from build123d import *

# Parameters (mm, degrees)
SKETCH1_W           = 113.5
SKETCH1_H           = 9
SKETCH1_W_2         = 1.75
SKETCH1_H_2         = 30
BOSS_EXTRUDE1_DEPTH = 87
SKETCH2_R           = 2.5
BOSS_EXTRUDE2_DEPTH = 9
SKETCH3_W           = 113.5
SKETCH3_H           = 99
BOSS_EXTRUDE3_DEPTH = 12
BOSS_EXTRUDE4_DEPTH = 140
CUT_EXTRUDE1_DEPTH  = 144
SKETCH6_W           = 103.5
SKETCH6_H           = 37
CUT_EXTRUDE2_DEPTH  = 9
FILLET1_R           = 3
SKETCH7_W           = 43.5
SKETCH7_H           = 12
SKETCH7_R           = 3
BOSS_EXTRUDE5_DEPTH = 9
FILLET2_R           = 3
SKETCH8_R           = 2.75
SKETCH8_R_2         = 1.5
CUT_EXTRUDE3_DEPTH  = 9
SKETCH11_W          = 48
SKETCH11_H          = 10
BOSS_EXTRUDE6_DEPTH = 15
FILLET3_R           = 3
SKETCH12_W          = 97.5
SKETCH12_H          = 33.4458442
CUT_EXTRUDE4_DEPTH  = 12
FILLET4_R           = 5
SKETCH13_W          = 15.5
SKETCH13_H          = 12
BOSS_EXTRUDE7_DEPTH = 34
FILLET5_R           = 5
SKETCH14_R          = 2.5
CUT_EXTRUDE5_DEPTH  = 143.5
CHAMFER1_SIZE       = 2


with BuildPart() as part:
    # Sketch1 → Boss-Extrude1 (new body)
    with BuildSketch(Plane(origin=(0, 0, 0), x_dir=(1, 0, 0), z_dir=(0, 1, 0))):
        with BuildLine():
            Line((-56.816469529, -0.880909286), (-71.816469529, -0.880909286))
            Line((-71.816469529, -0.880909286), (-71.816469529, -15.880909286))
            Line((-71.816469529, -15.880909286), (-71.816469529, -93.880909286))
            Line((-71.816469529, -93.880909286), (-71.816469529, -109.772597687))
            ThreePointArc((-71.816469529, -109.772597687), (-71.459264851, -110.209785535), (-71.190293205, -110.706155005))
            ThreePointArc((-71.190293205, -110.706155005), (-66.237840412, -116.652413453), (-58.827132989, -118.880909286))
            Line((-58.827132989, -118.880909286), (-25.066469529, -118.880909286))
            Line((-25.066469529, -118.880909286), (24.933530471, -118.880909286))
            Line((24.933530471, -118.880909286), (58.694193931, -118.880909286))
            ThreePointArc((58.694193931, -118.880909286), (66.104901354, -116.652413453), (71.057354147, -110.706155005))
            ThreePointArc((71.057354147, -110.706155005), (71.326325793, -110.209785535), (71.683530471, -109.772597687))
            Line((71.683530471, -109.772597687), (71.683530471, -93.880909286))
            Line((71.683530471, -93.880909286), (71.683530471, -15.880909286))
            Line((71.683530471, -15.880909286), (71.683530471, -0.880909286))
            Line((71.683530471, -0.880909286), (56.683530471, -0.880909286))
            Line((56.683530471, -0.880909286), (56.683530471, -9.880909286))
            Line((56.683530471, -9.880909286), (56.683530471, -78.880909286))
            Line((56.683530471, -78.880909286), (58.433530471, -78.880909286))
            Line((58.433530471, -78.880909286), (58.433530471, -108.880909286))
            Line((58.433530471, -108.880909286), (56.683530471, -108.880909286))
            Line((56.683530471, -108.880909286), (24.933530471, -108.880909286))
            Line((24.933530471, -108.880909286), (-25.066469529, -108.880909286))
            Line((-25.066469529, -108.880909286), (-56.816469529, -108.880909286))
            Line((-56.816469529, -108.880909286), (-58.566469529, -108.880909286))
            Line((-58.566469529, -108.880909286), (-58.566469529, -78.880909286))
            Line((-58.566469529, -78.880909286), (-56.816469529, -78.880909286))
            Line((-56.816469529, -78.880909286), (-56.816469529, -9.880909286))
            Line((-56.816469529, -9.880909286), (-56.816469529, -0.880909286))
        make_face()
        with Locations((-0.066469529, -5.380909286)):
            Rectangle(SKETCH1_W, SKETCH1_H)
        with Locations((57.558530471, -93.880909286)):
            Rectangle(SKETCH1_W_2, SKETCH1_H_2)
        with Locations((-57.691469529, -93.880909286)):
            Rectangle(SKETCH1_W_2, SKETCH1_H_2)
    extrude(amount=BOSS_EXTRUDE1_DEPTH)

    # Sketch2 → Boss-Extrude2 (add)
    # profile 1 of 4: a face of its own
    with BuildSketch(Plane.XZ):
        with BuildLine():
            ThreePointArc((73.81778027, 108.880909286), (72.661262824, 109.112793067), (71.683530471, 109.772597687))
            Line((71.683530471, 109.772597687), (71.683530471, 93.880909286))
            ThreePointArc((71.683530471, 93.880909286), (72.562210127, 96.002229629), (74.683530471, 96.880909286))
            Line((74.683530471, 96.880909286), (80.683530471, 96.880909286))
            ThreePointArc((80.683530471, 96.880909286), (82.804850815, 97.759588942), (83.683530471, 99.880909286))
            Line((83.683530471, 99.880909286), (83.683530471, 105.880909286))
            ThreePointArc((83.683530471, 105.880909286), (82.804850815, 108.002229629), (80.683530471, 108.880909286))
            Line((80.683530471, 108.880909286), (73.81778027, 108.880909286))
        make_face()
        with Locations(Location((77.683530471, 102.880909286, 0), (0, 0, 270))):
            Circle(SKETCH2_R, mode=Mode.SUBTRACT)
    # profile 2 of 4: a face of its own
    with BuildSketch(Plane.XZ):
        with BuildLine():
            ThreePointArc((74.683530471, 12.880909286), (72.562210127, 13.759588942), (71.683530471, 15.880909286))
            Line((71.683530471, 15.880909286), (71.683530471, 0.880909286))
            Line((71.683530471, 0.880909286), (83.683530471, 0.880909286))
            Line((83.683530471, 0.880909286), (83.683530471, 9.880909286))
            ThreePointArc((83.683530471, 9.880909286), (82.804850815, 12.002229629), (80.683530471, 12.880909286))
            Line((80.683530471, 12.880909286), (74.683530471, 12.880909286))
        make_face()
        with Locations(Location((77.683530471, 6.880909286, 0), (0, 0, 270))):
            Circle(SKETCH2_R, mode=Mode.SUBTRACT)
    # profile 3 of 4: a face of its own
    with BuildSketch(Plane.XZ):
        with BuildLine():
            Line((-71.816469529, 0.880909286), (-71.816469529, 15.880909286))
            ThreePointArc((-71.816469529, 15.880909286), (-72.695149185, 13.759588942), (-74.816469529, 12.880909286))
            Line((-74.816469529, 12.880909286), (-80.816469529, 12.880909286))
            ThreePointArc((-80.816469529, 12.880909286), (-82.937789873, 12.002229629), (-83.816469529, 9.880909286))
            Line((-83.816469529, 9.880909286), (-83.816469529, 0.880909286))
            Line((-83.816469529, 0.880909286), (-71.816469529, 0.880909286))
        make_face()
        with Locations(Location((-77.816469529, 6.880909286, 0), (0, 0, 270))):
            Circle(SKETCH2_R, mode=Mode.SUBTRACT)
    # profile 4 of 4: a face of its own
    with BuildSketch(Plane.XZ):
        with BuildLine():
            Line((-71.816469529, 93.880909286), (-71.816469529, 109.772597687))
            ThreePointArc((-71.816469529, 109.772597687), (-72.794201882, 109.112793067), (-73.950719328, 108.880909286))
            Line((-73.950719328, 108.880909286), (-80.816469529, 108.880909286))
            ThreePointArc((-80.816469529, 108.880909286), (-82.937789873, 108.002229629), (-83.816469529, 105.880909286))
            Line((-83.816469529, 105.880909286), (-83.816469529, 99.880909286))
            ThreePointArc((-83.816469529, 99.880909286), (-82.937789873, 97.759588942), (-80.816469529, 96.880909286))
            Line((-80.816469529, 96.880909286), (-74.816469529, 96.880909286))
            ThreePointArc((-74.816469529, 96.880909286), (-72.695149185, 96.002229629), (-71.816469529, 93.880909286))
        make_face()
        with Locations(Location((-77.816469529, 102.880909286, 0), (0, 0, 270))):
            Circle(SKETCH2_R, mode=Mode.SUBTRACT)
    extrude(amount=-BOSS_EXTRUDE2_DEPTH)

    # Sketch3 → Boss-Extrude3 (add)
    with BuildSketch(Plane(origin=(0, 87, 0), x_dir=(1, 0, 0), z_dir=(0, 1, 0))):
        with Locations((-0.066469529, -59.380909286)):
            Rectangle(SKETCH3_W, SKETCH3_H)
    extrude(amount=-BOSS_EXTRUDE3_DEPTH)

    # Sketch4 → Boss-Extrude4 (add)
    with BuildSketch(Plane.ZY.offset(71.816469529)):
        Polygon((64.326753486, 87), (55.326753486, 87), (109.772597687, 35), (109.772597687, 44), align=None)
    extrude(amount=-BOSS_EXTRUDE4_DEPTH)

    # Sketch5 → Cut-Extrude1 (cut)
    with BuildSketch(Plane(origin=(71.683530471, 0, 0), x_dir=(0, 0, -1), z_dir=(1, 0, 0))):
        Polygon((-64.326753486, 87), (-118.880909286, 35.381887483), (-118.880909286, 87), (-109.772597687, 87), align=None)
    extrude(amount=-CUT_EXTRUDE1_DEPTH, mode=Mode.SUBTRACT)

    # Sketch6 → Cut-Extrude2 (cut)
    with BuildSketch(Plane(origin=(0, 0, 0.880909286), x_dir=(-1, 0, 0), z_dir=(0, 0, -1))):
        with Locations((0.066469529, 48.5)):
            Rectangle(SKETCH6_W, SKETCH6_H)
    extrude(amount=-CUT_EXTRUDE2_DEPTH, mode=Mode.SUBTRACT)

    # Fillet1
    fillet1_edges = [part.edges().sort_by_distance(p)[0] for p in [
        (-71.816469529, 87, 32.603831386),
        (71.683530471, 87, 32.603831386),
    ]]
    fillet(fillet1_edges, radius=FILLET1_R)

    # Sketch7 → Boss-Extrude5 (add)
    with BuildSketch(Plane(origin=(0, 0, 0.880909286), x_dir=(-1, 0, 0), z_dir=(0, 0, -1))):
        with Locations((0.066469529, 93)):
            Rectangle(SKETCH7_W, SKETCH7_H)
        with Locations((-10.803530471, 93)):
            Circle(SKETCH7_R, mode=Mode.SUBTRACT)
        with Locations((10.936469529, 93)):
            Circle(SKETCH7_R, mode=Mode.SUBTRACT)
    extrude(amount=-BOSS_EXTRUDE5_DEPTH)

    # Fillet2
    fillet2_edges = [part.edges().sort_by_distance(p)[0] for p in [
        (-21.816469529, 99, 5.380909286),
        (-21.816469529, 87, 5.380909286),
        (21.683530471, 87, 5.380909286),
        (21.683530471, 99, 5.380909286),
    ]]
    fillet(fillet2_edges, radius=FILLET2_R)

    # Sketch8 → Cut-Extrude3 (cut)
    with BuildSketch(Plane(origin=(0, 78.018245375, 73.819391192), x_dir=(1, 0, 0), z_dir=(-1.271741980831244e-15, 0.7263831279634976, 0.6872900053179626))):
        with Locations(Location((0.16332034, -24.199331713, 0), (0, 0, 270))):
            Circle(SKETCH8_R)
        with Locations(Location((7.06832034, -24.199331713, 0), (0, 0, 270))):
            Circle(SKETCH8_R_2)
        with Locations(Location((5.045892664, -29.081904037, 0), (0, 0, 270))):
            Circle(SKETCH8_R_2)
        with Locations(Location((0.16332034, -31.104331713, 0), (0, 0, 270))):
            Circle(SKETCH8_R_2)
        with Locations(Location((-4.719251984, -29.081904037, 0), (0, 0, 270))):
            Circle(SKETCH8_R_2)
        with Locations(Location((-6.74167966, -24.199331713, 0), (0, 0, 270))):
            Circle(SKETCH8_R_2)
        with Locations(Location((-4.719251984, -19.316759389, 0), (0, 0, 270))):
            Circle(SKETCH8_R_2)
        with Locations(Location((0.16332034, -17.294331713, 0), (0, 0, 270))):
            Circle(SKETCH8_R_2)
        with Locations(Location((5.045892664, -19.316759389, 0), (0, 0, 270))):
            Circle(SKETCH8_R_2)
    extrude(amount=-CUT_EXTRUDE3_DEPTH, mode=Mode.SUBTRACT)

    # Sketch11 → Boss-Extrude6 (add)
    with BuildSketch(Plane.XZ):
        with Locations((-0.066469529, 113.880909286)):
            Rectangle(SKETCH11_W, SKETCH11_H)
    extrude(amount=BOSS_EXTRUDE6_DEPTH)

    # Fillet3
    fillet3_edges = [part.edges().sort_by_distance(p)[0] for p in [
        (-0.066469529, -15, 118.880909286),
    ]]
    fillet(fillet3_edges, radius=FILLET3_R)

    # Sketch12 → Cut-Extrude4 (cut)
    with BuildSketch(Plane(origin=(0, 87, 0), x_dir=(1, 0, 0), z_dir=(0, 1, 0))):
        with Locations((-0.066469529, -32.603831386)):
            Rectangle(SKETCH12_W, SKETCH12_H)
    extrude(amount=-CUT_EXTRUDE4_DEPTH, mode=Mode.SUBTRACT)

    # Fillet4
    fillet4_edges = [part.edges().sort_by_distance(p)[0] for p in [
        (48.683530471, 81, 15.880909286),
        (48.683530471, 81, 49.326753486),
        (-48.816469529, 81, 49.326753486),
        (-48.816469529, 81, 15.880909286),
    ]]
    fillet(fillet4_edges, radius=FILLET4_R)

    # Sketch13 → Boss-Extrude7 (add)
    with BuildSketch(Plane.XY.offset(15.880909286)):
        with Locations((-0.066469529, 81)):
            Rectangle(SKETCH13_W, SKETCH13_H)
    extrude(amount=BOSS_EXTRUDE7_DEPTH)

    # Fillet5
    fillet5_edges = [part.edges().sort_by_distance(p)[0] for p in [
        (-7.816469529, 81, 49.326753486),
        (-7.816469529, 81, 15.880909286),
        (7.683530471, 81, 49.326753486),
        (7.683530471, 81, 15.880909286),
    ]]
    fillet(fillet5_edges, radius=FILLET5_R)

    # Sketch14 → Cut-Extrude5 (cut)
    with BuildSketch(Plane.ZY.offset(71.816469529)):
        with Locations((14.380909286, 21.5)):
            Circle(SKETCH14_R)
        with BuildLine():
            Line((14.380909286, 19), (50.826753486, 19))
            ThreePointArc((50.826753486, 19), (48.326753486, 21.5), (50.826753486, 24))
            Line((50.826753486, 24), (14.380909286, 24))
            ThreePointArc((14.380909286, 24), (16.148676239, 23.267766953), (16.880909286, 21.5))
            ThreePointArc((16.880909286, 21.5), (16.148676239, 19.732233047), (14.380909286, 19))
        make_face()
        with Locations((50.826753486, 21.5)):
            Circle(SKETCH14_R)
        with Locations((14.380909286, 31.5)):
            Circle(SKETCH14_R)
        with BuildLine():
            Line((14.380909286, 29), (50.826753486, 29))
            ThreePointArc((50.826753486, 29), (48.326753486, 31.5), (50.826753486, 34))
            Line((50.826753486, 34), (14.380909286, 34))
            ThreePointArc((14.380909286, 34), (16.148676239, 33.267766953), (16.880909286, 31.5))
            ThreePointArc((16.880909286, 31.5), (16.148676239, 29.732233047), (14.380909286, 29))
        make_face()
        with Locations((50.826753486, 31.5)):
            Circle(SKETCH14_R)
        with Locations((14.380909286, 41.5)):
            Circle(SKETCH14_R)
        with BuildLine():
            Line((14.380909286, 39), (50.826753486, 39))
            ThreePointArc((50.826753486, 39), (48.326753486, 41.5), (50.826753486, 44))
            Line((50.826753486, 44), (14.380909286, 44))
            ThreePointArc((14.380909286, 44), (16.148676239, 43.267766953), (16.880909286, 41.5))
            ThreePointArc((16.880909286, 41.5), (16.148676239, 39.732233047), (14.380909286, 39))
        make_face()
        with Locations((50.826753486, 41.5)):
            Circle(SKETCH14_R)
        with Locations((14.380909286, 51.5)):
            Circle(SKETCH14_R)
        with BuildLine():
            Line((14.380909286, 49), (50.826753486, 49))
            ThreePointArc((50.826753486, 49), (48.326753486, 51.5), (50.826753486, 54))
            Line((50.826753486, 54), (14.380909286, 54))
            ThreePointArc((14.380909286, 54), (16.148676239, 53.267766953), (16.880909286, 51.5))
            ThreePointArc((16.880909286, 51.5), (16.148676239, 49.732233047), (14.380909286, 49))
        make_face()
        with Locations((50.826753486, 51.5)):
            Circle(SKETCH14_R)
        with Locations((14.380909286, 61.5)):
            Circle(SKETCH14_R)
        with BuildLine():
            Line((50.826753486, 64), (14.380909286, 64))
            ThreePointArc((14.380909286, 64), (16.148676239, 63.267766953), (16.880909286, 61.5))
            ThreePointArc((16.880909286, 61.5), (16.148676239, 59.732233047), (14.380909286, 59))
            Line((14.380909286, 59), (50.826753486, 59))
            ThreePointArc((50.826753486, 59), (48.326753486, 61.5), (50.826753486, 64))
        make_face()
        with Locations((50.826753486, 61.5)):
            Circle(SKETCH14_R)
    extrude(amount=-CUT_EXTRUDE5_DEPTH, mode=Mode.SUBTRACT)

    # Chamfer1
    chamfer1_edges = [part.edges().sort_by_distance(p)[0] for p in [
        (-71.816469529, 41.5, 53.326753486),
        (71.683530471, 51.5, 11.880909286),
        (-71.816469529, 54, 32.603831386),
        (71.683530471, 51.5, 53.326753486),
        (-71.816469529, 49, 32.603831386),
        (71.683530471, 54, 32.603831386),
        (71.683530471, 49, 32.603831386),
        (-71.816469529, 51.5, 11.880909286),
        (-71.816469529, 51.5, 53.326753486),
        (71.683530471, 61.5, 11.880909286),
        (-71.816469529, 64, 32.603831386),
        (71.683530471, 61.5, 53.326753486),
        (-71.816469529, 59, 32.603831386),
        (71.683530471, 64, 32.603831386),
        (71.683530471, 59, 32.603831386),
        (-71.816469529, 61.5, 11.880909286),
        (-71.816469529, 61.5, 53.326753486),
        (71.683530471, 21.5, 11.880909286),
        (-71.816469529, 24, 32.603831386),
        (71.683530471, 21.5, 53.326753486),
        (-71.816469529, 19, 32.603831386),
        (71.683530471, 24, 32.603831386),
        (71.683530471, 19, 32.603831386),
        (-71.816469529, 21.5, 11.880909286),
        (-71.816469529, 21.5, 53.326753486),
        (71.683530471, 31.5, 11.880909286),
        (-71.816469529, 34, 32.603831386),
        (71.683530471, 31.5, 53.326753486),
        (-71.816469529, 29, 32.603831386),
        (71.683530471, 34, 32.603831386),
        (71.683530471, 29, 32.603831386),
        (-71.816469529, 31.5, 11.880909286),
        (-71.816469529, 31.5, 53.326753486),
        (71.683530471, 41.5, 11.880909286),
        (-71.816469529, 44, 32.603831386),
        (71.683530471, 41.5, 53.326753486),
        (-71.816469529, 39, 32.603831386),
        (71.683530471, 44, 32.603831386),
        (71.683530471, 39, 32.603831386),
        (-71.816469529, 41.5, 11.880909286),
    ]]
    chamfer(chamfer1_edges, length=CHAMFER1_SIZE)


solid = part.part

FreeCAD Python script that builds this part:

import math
import FreeCAD as App
import Part
import Sketcher
from FreeCAD import Vector
Q = App.Units.Quantity


def edges_at(feature, points):
    """Names of the edges that pass closest to the given points."""
    edges = feature.Shape.Edges
    near = lambda p: min(range(len(edges)), key=lambda i: edges[i].distToShape(Part.Vertex(*p))[0])
    return sorted({f"Edge{near(p) + 1}" for p in points})

doc = App.newDocument("Part")
body = doc.addObject("PartDesign::Body", "Body")

# Sketch on XZ plane
sketch1 = body.newObject("Sketcher::SketchObject", "Sketch")
sketch1.AttachmentSupport = (doc.getObject("XZ_Plane"), [""])
sketch1.MapMode = "FlatFace"
sketch1.addGeometry(Part.LineSegment(Vector(-71.8, 0.9, 0), Vector(-71.8, 109.8, 0)), False)
sketch1.addGeometry(Part.ArcOfCircle(Part.Circle(Vector(-74, 111.9, 0), Vector(0, 0, 1), 3), math.radians(-45), math.radians(-23)), False)
sketch1.addGeometry(Part.ArcOfCircle(Part.Circle(Vector(-58.8, 105.4, 0), Vector(0, 0, 1), 13.4), math.radians(90), math.radians(157)), False)
sketch1.addGeometry(Part.LineSegment(Vector(-58.8, 118.9, 0), Vector(58.7, 118.9, 0)), False)
sketch1.addGeometry(Part.ArcOfCircle(Part.Circle(Vector(58.7, 105.4, 0), Vector(0, 0, 1), 13.4), math.radians(23), math.radians(90)), False)
sketch1.addGeometry(Part.ArcOfCircle(Part.Circle(Vector(73.8, 111.9, 0), Vector(0, 0, 1), 3), math.radians(-157), math.radians(-135)), False)
sketch1.addGeometry(Part.LineSegment(Vector(71.7, 109.8, 0), Vector(71.7, 0.9, 0)), False)
sketch1.addGeometry(Part.LineSegment(Vector(71.7, 0.9, 0), Vector(-71.8, 0.9, 0)), False)
sketch1.addGeometry(Part.LineSegment(Vector(56.7, 9.9, 0), Vector(56.7, 108.9, 0)), False)
sketch1.addGeometry(Part.LineSegment(Vector(56.7, 108.9, 0), Vector(-56.8, 108.9, 0)), False)
sketch1.addGeometry(Part.LineSegment(Vector(-56.8, 108.9, 0), Vector(-56.8, 9.9, 0)), False)
sketch1.addGeometry(Part.LineSegment(Vector(-56.8, 9.9, 0), Vector(56.7, 9.9, 0)), False)
sketch1.addConstraint(Sketcher.Constraint("Coincident", 0, 2, 1, 1))
sketch1.addConstraint(Sketcher.Constraint("Tangent", 1, 2, 2, 2))
sketch1.addConstraint(Sketcher.Constraint("Tangent", 2, 1, 3, 1))
sketch1.addConstraint(Sketcher.Constraint("Tangent", 3, 2, 4, 2))
sketch1.addConstraint(Sketcher.Constraint("Tangent", 4, 1, 5, 1))
sketch1.addConstraint(Sketcher.Constraint("Coincident", 5, 2, 6, 1))
sketch1.addConstraint(Sketcher.Constraint("Coincident", 6, 2, 7, 1))
sketch1.addConstraint(Sketcher.Constraint("Coincident", 7, 2, 0, 1))
sketch1.addConstraint(Sketcher.Constraint("Coincident", 8, 2, 9, 1))
sketch1.addConstraint(Sketcher.Constraint("Coincident", 9, 2, 10, 1))
sketch1.addConstraint(Sketcher.Constraint("Coincident", 10, 2, 11, 1))
sketch1.addConstraint(Sketcher.Constraint("Coincident", 11, 2, 8, 1))
sketch1.addConstraint(Sketcher.Constraint("Vertical", 0))
sketch1.addConstraint(Sketcher.Constraint("Horizontal", 3))
sketch1.addConstraint(Sketcher.Constraint("Vertical", 6))
sketch1.addConstraint(Sketcher.Constraint("Horizontal", 7))
sketch1.addConstraint(Sketcher.Constraint("Vertical", 8))
sketch1.addConstraint(Sketcher.Constraint("Horizontal", 9))
sketch1.addConstraint(Sketcher.Constraint("Vertical", 10))
sketch1.addConstraint(Sketcher.Constraint("Horizontal", 11))
sketch1.addConstraint(Sketcher.Constraint("Equal", 2, 4))
sketch1.addConstraint(Sketcher.Constraint("Equal", 1, 5))
sketch1.addConstraint(Sketcher.Constraint("Horizontal", 1, 3, 5, 3))
sketch1.addConstraint(Sketcher.Constraint("Horizontal", 0, 2, 5, 2))
sketch1.addConstraint(Sketcher.Constraint("Radius", 1, Q("3 mm")))
sketch1.addConstraint(Sketcher.Constraint("DistanceY", 8, 1, 8, 2, Q("99 mm")))
sketch1.addConstraint(Sketcher.Constraint("DistanceX", 7, 2, 7, 1, Q("143.5 mm")))
sketch1.addConstraint(Sketcher.Constraint("DistanceX", 9, 2, 9, 1, Q("113.5 mm")))
sketch1.addConstraint(Sketcher.Constraint("DistanceY", 1, 3, 2, 1, Q("7 mm")))
sketch1.addConstraint(Sketcher.Constraint("DistanceY", 6, 2, 5, 3, Q("111 mm")))
sketch1.addConstraint(Sketcher.Constraint("DistanceY", 8, 2, 3, 2, Q("10 mm")))
sketch1.addConstraint(Sketcher.Constraint("DistanceX", 8, 2, 5, 2, Q("15 mm")))
sketch1.addConstraint(Sketcher.Constraint("Radius", 2, Q("13.436143 mm")))
sketch1.addConstraint(Sketcher.Constraint("DistanceY", 0, 1, 0, 2, Q("108.891688 mm")))
sketch1.addConstraint(Sketcher.Constraint("DistanceX", 1, 3, -1, 1, Q("73.950719 mm")))
sketch1.addConstraint(Sketcher.Constraint("DistanceY", -1, 1, 1, 3, Q("111.880909 mm")))
pad1 = body.newObject("PartDesign::Pad", "Pad")
pad1.Profile = sketch1
pad1.Length = 87
pad1.Reversed = True

# Sketch on XZ plane
sketch2 = body.newObject("Sketcher::SketchObject", "Sketch001")
sketch2.AttachmentSupport = (doc.getObject("XZ_Plane"), [""])
sketch2.MapMode = "FlatFace"
sketch2.addGeometry(Part.ArcOfCircle(Part.Circle(Vector(73.8, 111.9, 0), Vector(0, 0, 1), 3), math.radians(-135), math.radians(-90)), False)
sketch2.addGeometry(Part.LineSegment(Vector(71.7, 109.8, 0), Vector(71.7, 93.9, 0)), False)
sketch2.addGeometry(Part.ArcOfCircle(Part.Circle(Vector(74.7, 93.9, 0), Vector(0, 0, 1), 3), math.radians(90), math.radians(180)), False)
sketch2.addGeometry(Part.LineSegment(Vector(74.7, 96.9, 0), Vector(80.7, 96.9, 0)), False)
sketch2.addGeometry(Part.ArcOfCircle(Part.Circle(Vector(80.7, 99.9, 0), Vector(0, 0, 1), 3), math.radians(-90), math.radians(0)), False)
sketch2.addGeometry(Part.LineSegment(Vector(83.7, 99.9, 0), Vector(83.7, 105.9, 0)), False)
sketch2.addGeometry(Part.ArcOfCircle(Part.Circle(Vector(80.7, 105.9, 0), Vector(0, 0, 1), 3), math.radians(0), math.radians(90)), False)
sketch2.addGeometry(Part.LineSegment(Vector(80.7, 108.9, 0), Vector(73.8, 108.9, 0)), False)
sketch2.addGeometry(Part.Circle(Vector(77.7, 102.9, 0), Vector(0, 0, 1), 2.5), False)
sketch2.addGeometry(Part.ArcOfCircle(Part.Circle(Vector(74.7, 15.9, 0), Vector(0, 0, 1), 3), math.radians(180), math.radians(270)), False)
sketch2.addGeometry(Part.LineSegment(Vector(71.7, 15.9, 0), Vector(71.7, 0.9, 0)), False)
sketch2.addGeometry(Part.LineSegment(Vector(71.7, 0.9, 0), Vector(83.7, 0.9, 0)), False)
sketch2.addGeometry(Part.LineSegment(Vector(83.7, 0.9, 0), Vector(83.7, 9.9, 0)), False)
sketch2.addGeometry(Part.ArcOfCircle(Part.Circle(Vector(80.7, 9.9, 0), Vector(0, 0, 1), 3), math.radians(0), math.radians(90)), False)
sketch2.addGeometry(Part.LineSegment(Vector(80.7, 12.9, 0), Vector(74.7, 12.9, 0)), False)
sketch2.addGeometry(Part.Circle(Vector(77.7, 6.9, 0), Vector(0, 0, 1), 2.5), False)
sketch2.addGeometry(Part.LineSegment(Vector(-71.8, 0.9, 0), Vector(-71.8, 15.9, 0)), False)
sketch2.addGeometry(Part.ArcOfCircle(Part.Circle(Vector(-74.8, 15.9, 0), Vector(0, 0, 1), 3), math.radians(-90), math.radians(0)), False)
sketch2.addGeometry(Part.LineSegment(Vector(-74.8, 12.9, 0), Vector(-80.8, 12.9, 0)), False)
sketch2.addGeometry(Part.ArcOfCircle(Part.Circle(Vector(-80.8, 9.9, 0), Vector(0, 0, 1), 3), math.radians(90), math.radians(180)), False)
sketch2.addGeometry(Part.LineSegment(Vector(-83.8, 9.9, 0), Vector(-83.8, 0.9, 0)), False)
sketch2.addGeometry(Part.LineSegment(Vector(-83.8, 0.9, 0), Vector(-71.8, 0.9, 0)), False)
sketch2.addGeometry(Part.Circle(Vector(-77.8, 6.9, 0), Vector(0, 0, 1), 2.5), False)
sketch2.addGeometry(Part.LineSegment(Vector(-71.8, 93.9, 0), Vector(-71.8, 109.8, 0)), False)
sketch2.addGeometry(Part.ArcOfCircle(Part.Circle(Vector(-74, 111.9, 0), Vector(0, 0, 1), 3), math.radians(-90), math.radians(-45)), False)
sketch2.addGeometry(Part.LineSegment(Vector(-74, 108.9, 0), Vector(-80.8, 108.9, 0)), False)
sketch2.addGeometry(Part.ArcOfCircle(Part.Circle(Vector(-80.8, 105.9, 0), Vector(0, 0, 1), 3), math.radians(90), math.radians(180)), False)
sketch2.addGeometry(Part.LineSegment(Vector(-83.8, 105.9, 0), Vector(-83.8, 99.9, 0)), False)
sketch2.addGeometry(Part.ArcOfCircle(Part.Circle(Vector(-80.8, 99.9, 0), Vector(0, 0, 1), 3), math.radians(180), math.radians(270)), False)
sketch2.addGeometry(Part.LineSegment(Vector(-80.8, 96.9, 0), Vector(-74.8, 96.9, 0)), False)
sketch2.addGeometry(Part.ArcOfCircle(Part.Circle(Vector(-74.8, 93.9, 0), Vector(0, 0, 1), 3), math.radians(0), math.radians(90)), False)
sketch2.addGeometry(Part.Circle(Vector(-77.8, 102.9, 0), Vector(0, 0, 1), 2.5), False)
sketch2.addConstraint(Sketcher.Constraint("Coincident", 0, 1, 1, 1))
sketch2.addConstraint(Sketcher.Constraint("Tangent", 1, 2, 2, 2))
sketch2.addConstraint(Sketcher.Constraint("Tangent", 2, 1, 3, 1))
sketch2.addConstraint(Sketcher.Constraint("Tangent", 3, 2, 4, 1))
sketch2.addConstraint(Sketcher.Constraint("Tangent", 4, 2, 5, 1))
sketch2.addConstraint(Sketcher.Constraint("Tangent", 5, 2, 6, 1))
sketch2.addConstraint(Sketcher.Constraint("Tangent", 6, 2, 7, 1))
sketch2.addConstraint(Sketcher.Constraint("Tangent", 7, 2, 0, 2))
sketch2.addConstraint(Sketcher.Constraint("Tangent", 9, 1, 10, 1))
sketch2.addConstraint(Sketcher.Constraint("Coincident", 10, 2, 11, 1))
sketch2.addConstraint(Sketcher.Constraint("Coincident", 11, 2, 12, 1))
sketch2.addConstraint(Sketcher.Constraint("Tangent", 12, 2, 13, 1))
sketch2.addConstraint(Sketcher.Constraint("Tangent", 13, 2, 14, 1))
sketch2.addConstraint(Sketcher.Constraint("Tangent", 14, 2, 9, 2))
sketch2.addConstraint(Sketcher.Constraint("Tangent", 16, 2, 17, 2))
sketch2.addConstraint(Sketcher.Constraint("Tangent", 17, 1, 18, 1))
sketch2.addConstraint(Sketcher.Constraint("Tangent", 18, 2, 19, 1))
sketch2.addConstraint(Sketcher.Constraint("Tangent", 19, 2, 20, 1))
sketch2.addConstraint(Sketcher.Constraint("Coincident", 20, 2, 21, 1))
sketch2.addConstraint(Sketcher.Constraint("Coincident", 21, 2, 16, 1))
sketch2.addConstraint(Sketcher.Constraint("Coincident", 23, 2, 24, 2))
sketch2.addConstraint(Sketcher.Constraint("Tangent", 24, 1, 25, 1))
sketch2.addConstraint(Sketcher.Constraint("Tangent", 25, 2, 26, 1))
sketch2.addConstraint(Sketcher.Constraint("Tangent", 26, 2, 27, 1))
sketch2.addConstraint(Sketcher.Constraint("Tangent", 27, 2, 28, 1))
sketch2.addConstraint(Sketcher.Constraint("Tangent", 28, 2, 29, 1))
sketch2.addConstraint(Sketcher.Constraint("Tangent", 29, 2, 30, 2))
sketch2.addConstraint(Sketcher.Constraint("Tangent", 30, 1, 23, 1))
sketch2.addConstraint(Sketcher.Constraint("Vertical", 1))
sketch2.addConstraint(Sketcher.Constraint("Horizontal", 3))
sketch2.addConstraint(Sketcher.Constraint("Vertical", 5))
sketch2.addConstraint(Sketcher.Constraint("Horizontal", 7))
sketch2.addConstraint(Sketcher.Constraint("Vertical", 10))
sketch2.addConstraint(Sketcher.Constraint("Horizontal", 11))
sketch2.addConstraint(Sketcher.Constraint("Vertical", 12))
sketch2.addConstraint(Sketcher.Constraint("Horizontal", 14))
sketch2.addConstraint(Sketcher.Constraint("Vertical", 16))
sketch2.addConstraint(Sketcher.Constraint("Horizontal", 18))
sketch2.addConstraint(Sketcher.Constraint("Vertical", 20))
sketch2.addConstraint(Sketcher.Constraint("Horizontal", 21))
sketch2.addConstraint(Sketcher.Constraint("Vertical", 23))
sketch2.addConstraint(Sketcher.Constraint("Horizontal", 25))
sketch2.addConstraint(Sketcher.Constraint("Vertical", 27))
sketch2.addConstraint(Sketcher.Constraint("Horizontal", 29))
sketch2.addConstraint(Sketcher.Constraint("Equal", 0, 2))
sketch2.addConstraint(Sketcher.Constraint("Equal", 2, 4))
sketch2.addConstraint(Sketcher.Constraint("Equal", 4, 6))
sketch2.addConstraint(Sketcher.Constraint("Equal", 6, 9))
sketch2.addConstraint(Sketcher.Constraint("Equal", 9, 13))
sketch2.addConstraint(Sketcher.Constraint("Equal", 8, 15))
sketch2.addConstraint(Sketcher.Constraint("Equal", 13, 17))
sketch2.addConstraint(Sketcher.Constraint("Equal", 17, 19))
sketch2.addConstraint(Sketcher.Constraint("Equal", 15, 22))
sketch2.addConstraint(Sketcher.Constraint("Equal", 19, 24))
sketch2.addConstraint(Sketcher.Constraint("Equal", 24, 26))
sketch2.addConstraint(Sketcher.Constraint("Equal", 26, 28))
sketch2.addConstraint(Sketcher.Constraint("Equal", 28, 30))
sketch2.addConstraint(Sketcher.Constraint("Equal", 22, 31))
sketch2.addConstraint(Sketcher.Constraint("Horizontal", 9, 3, 17, 3))
sketch2.addConstraint(Sketcher.Constraint("Horizontal", 15, 3, 22, 3))
sketch2.addConstraint(Sketcher.Constraint("Horizontal", 0, 3, 24, 3))
sketch2.addConstraint(Sketcher.Constraint("Horizontal", 4, 3, 28, 3))
sketch2.addConstraint(Sketcher.Constraint("Horizontal", 8, 3, 31, 3))
sketch2.addConstraint(Sketcher.Constraint("Horizontal", 11, 2, 20, 2))
sketch2.addConstraint(Sketcher.Constraint("Horizontal", 0, 1, 23, 2))
sketch2.addConstraint(Sketcher.Constraint("Vertical", 2, 3, 9, 3))
sketch2.addConstraint(Sketcher.Constraint("Vertical", 6, 3, 13, 3))
sketch2.addConstraint(Sketcher.Constraint("Vertical", 8, 3, 15, 3))
sketch2.addConstraint(Sketcher.Constraint("Vertical", 19, 3, 26, 3))
sketch2.addConstraint(Sketcher.Constraint("Vertical", 17, 3, 30, 3))
sketch2.addConstraint(Sketcher.Constraint("Vertical", 22, 3, 31, 3))
sketch2.addConstraint(Sketcher.Constraint("Equal", 14, 18))
sketch2.addConstraint(Sketcher.Constraint("Equal", 29, 5))
sketch2.addConstraint(Sketcher.Constraint("Diameter", 8, Q("5 mm")))
sketch2.addConstraint(Sketcher.Constraint("Radius", 0, Q("3 mm")))
sketch2.addConstraint(Sketcher.Constraint("DistanceX", 3, 1, 3, 2, Q("6 mm")))
sketch2.addConstraint(Sketcher.Constraint("DistanceY", 10, 2, 10, 1, Q("15 mm")))
sketch2.addConstraint(Sketcher.Constraint("DistanceX", 8, 3, 6, 3, Q("3 mm")))
sketch2.addConstraint(Sketcher.Constraint("DistanceY", 8, 3, 6, 3, Q("3 mm")))
sketch2.addConstraint(Sketcher.Constraint("DistanceY", 9, 3, 2, 3, Q("78 mm")))
sketch2.addConstraint(Sketcher.Constraint("DistanceY", 15, 3, 13, 3, Q("3 mm")))
sketch2.addConstraint(Sketcher.Constraint("DistanceX", 19, 3, 22, 3, Q("3 mm")))
sketch2.addConstraint(Sketcher.Constraint("DistanceX", 17, 3, 9, 3, Q("149.5 mm")))
sketch2.addConstraint(Sketcher.Constraint("DistanceX", 7, 2, 7, 1, Q("6.86575 mm")))
sketch2.addConstraint(Sketcher.Constraint("DistanceX", -1, 1, 0, 3, Q("73.81778 mm")))
sketch2.addConstraint(Sketcher.Constraint("DistanceY", -1, 1, 0, 3, Q("111.880909 mm")))
pad2 = body.newObject("PartDesign::Pad", "Pad001")
pad2.Profile = sketch2
pad2.Length = 9
pad2.Reversed = True

# Sketch on XZ plane
sketch3 = body.newObject("Sketcher::SketchObject", "Sketch002")
sketch3.AttachmentSupport = (doc.getObject("XZ_Plane"), [""])
sketch3.MapMode = "FlatFace"
sketch3.AttachmentOffset = App.Placement(Vector(0, 0, -87), App.Rotation())
sketch3.addGeometry(Part.LineSegment(Vector(-57, 10, 0), Vector(-57, 109, 0)), False)
sketch3.addGeometry(Part.LineSegment(Vector(-57, 109, 0), Vector(57, 109, 0)), False)
sketch3.addGeometry(Part.LineSegment(Vector(57, 109, 0), Vector(57, 10, 0)), False)
sketch3.addGeometry(Part.LineSegment(Vector(57, 10, 0), Vector(-57, 10, 0)), False)
sketch3.addConstraint(Sketcher.Constraint("Coincident", 0, 2, 1, 1))
sketch3.addConstraint(Sketcher.Constraint("Coincident", 1, 2, 2, 1))
sketch3.addConstraint(Sketcher.Constraint("Coincident", 2, 2, 3, 1))
sketch3.addConstraint(Sketcher.Constraint("Coincident", 3, 2, 0, 1))
sketch3.addConstraint(Sketcher.Constraint("Vertical", 0))
sketch3.addConstraint(Sketcher.Constraint("Horizontal", 1))
sketch3.addConstraint(Sketcher.Constraint("Vertical", 2))
sketch3.addConstraint(Sketcher.Constraint("Horizontal", 3))
sketch3.addConstraint(Sketcher.Constraint("DistanceY", 0, 1, 0, 2, Q("99 mm")))
sketch3.addConstraint(Sketcher.Constraint("DistanceX", 1, 1, 1, 2, Q("113.5 mm")))
sketch3.addConstraint(Sketcher.Constraint("DistanceX", 0, 2, -1, 1, Q("56.81647 mm")))
sketch3.addConstraint(Sketcher.Constraint("DistanceY", -1, 1, 0, 2, Q("108.880909 mm")))
pad3 = body.newObject("PartDesign::Pad", "Pad002")
pad3.Profile = sketch3
pad3.Length = 12

# Sketch on YZ plane
sketch4 = body.newObject("Sketcher::SketchObject", "Sketch003")
sketch4.AttachmentSupport = (doc.getObject("YZ_Plane"), [""])
sketch4.MapMode = "FlatFace"
sketch4.AttachmentOffset = App.Placement(Vector(0, 0, -71.81647), App.Rotation())
sketch4.addGeometry(Part.LineSegment(Vector(87, 64, 0), Vector(87, 55, 0)), False)
sketch4.addGeometry(Part.LineSegment(Vector(87, 55, 0), Vector(35, 110, 0)), False)
sketch4.addGeometry(Part.LineSegment(Vector(35, 110, 0), Vector(44, 110, 0)), False)
sketch4.addGeometry(Part.LineSegment(Vector(44, 110, 0), Vector(87, 64, 0)), False)
sketch4.addConstraint(Sketcher.Constraint("Coincident", 0, 2, 1, 1))
sketch4.addConstraint(Sketcher.Constraint("Coincident", 1, 2, 2, 1))
sketch4.addConstraint(Sketcher.Constraint("Coincident", 2, 2, 3, 1))
sketch4.addConstraint(Sketcher.Constraint("Coincident", 3, 2, 0, 1))
sketch4.addConstraint(Sketcher.Constraint("Vertical", 0))
sketch4.addConstraint(Sketcher.Constraint("Horizontal", 2))
sketch4.addConstraint(Sketcher.Constraint("Equal", 2, 0))
sketch4.addConstraint(Sketcher.Constraint("DistanceX", 2, 1, 2, 2, Q("9 mm")))
sketch4.addConstraint(Sketcher.Constraint("DistanceX", -1, 1, 0, 2, Q("87 mm")))
sketch4.addConstraint(Sketcher.Constraint("DistanceX", -1, 1, 1, 2, Q("35 mm")))
sketch4.addConstraint(Sketcher.Constraint("Distance", 1, Q("75.288445 mm")))
sketch4.addConstraint(Sketcher.Constraint("DistanceY", -1, 1, 0, 2, Q("55.326753 mm")))
pad4 = body.newObject("PartDesign::Pad", "Pad003")
pad4.Profile = sketch4
pad4.Length = 140

# Sketch on YZ plane
sketch5 = body.newObject("Sketcher::SketchObject", "Sketch004")
sketch5.AttachmentSupport = (doc.getObject("YZ_Plane"), [""])
sketch5.MapMode = "FlatFace"
sketch5.AttachmentOffset = App.Placement(Vector(0, 0, 71.68353), App.Rotation())
sketch5.addGeometry(Part.LineSegment(Vector(35, 119, 0), Vector(87, 64, 0)), False)
sketch5.addGeometry(Part.LineSegment(Vector(87, 64, 0), Vector(87, 119, 0)), False)
sketch5.addGeometry(Part.LineSegment(Vector(87, 119, 0), Vector(35, 119, 0)), False)
sketch5.addConstraint(Sketcher.Constraint("Coincident", 0, 2, 1, 1))
sketch5.addConstraint(Sketcher.Constraint("Coincident", 1, 2, 2, 1))
sketch5.addConstraint(Sketcher.Constraint("Coincident", 2, 2, 0, 1))
sketch5.addConstraint(Sketcher.Constraint("Vertical", 1))
sketch5.addConstraint(Sketcher.Constraint("Horizontal", 2))
sketch5.addConstraint(Sketcher.Constraint("DistanceX", -1, 1, 0, 2, Q("87 mm")))
sketch5.addConstraint(Sketcher.Constraint("Distance", 0, Q("75.103831 mm")))
sketch5.addConstraint(Sketcher.Constraint("DistanceX", 2, 2, 2, 1, Q("51.618113 mm")))
sketch5.addConstraint(Sketcher.Constraint("DistanceY", -1, 1, 1, 2, Q("118.880909 mm")))
pocket1 = body.newObject("PartDesign::Pocket", "Pocket")
pocket1.Profile = sketch5
pocket1.Length = 144

# Sketch on XY plane
sketch6 = body.newObject("Sketcher::SketchObject", "Sketch005")
sketch6.AttachmentSupport = (doc.getObject("XY_Plane"), [""])
sketch6.MapMode = "FlatFace"
sketch6.AttachmentOffset = App.Placement(Vector(0, 0, 0.880909), App.Rotation())
sketch6.addGeometry(Part.LineSegment(Vector(52, 67, 0), Vector(52, 30, 0)), False)
sketch6.addGeometry(Part.LineSegment(Vector(52, 30, 0), Vector(-52, 30, 0)), False)
sketch6.addGeometry(Part.LineSegment(Vector(-52, 30, 0), Vector(-52, 67, 0)), False)
sketch6.addGeometry(Part.LineSegment(Vector(-52, 67, 0), Vector(52, 67, 0)), False)
sketch6.addConstraint(Sketcher.Constraint("Coincident", 0, 2, 1, 1))
sketch6.addConstraint(Sketcher.Constraint("Coincident", 1, 2, 2, 1))
sketch6.addConstraint(Sketcher.Constraint("Coincident", 2, 2, 3, 1))
sketch6.addConstraint(Sketcher.Constraint("Coincident", 3, 2, 0, 1))
sketch6.addConstraint(Sketcher.Constraint("Vertical", 0))
sketch6.addConstraint(Sketcher.Constraint("Horizontal", 1))
sketch6.addConstraint(Sketcher.Constraint("Vertical", 2))
sketch6.addConstraint(Sketcher.Constraint("Horizontal", 3))
sketch6.addConstraint(Sketcher.Constraint("DistanceY", 0, 2, 0, 1, Q("37 mm")))
sketch6.addConstraint(Sketcher.Constraint("DistanceX", 1, 2, 1, 1, Q("103.5 mm")))
sketch6.addConstraint(Sketcher.Constraint("DistanceY", -1, 1, 0, 2, Q("30 mm")))
sketch6.addConstraint(Sketcher.Constraint("DistanceX", -1, 1, 0, 2, Q("51.68353 mm")))
pocket2 = body.newObject("PartDesign::Pocket", "Pocket001")
pocket2.Profile = sketch6
pocket2.Length = 9
pocket2.Reversed = True
doc.recompute()

fillet = body.newObject("PartDesign::Fillet", "Fillet")
fillet.Base = (pocket2, edges_at(pocket2, [(-71.816, 87, 32.604), (71.684, 87, 32.604)]))
fillet.Radius = 3

# Sketch on XY plane
sketch7 = body.newObject("Sketcher::SketchObject", "Sketch006")
sketch7.AttachmentSupport = (doc.getObject("XY_Plane"), [""])
sketch7.MapMode = "FlatFace"
sketch7.AttachmentOffset = App.Placement(Vector(0, 0, 0.880909), App.Rotation())
sketch7.addGeometry(Part.LineSegment(Vector(21.7, 99, 0), Vector(21.7, 87, 0)), False)
sketch7.addGeometry(Part.LineSegment(Vector(21.7, 87, 0), Vector(-21.8, 87, 0)), False)
sketch7.addGeometry(Part.LineSegment(Vector(-21.8, 87, 0), Vector(-21.8, 99, 0)), False)
sketch7.addGeometry(Part.LineSegment(Vector(-21.8, 99, 0), Vector(21.7, 99, 0)), False)
sketch7.addGeometry(Part.Circle(Vector(10.8, 93, 0), Vector(0, 0, 1), 3), False)
sketch7.addGeometry(Part.Circle(Vector(-10.9, 93, 0), Vector(0, 0, 1), 3), False)
sketch7.addConstraint(Sketcher.Constraint("Coincident", 0, 2, 1, 1))
sketch7.addConstraint(Sketcher.Constraint("Coincident", 1, 2, 2, 1))
sketch7.addConstraint(Sketcher.Constraint("Coincident", 2, 2, 3, 1))
sketch7.addConstraint(Sketcher.Constraint("Coincident", 3, 2, 0, 1))
sketch7.addConstraint(Sketcher.Constraint("Vertical", 0))
sketch7.addConstraint(Sketcher.Constraint("Horizontal", 1))
sketch7.addConstraint(Sketcher.Constraint("Vertical", 2))
sketch7.addConstraint(Sketcher.Constraint("Horizontal", 3))
sketch7.addConstraint(Sketcher.Constraint("Equal", 4, 5))
sketch7.addConstraint(Sketcher.Constraint("Horizontal", 4, 3, 5, 3))
sketch7.addConstraint(Sketcher.Constraint("Diameter", 4, Q("6 mm")))
sketch7.addConstraint(Sketcher.Constraint("DistanceY", 0, 2, 0, 1, Q("12 mm")))
sketch7.addConstraint(Sketcher.Constraint("DistanceX", 1, 2, 1, 1, Q("43.5 mm")))
sketch7.addConstraint(Sketcher.Constraint("DistanceY", -1, 1, 4, 3, Q("93 mm")))
sketch7.addConstraint(Sketcher.Constraint("DistanceY", -1, 1, 0, 2, Q("87 mm")))
sketch7.addConstraint(Sketcher.Constraint("DistanceX", 5, 3, 4, 3, Q("21.74 mm")))
sketch7.addConstraint(Sketcher.Constraint("DistanceX", 4, 3, 0, 2, Q("10.88 mm")))
sketch7.addConstraint(Sketcher.Constraint("DistanceX", -1, 1, 4, 3, Q("10.80353 mm")))
pad5 = body.newObject("PartDesign::Pad", "Pad004")
pad5.Profile = sketch7
pad5.Length = 9
doc.recompute()

fillet2 = body.newObject("PartDesign::Fillet", "Fillet001")
fillet2.Base = (pad5, edges_at(pad5, [
    (-21.816, 99, 5.381),
    (-21.816, 87, 5.381),
    (21.684, 87, 5.381),
    (21.684, 99, 5.381),
]))
fillet2.Radius = 3

# Sketch on an angled plane
sketch8 = body.newObject("Sketcher::SketchObject", "Sketch007")
sketch8.Placement = App.Placement(Vector(0, 78.018245, 73.819391), App.Rotation(Vector(1, 0, 0), Vector(0, 0.687290005, -0.726383128), Vector(0, 0.726383128, 0.687290005), "ZXY"))
sketch8.addGeometry(Part.Circle(Vector(0.2, -24.2, 0), Vector(0, 0, 1), 2.8), False)
sketch8.addGeometry(Part.Circle(Vector(7.1, -24.2, 0), Vector(0, 0, 1), 1.5), False)
sketch8.addGeometry(Part.Circle(Vector(5, -29.1, 0), Vector(0, 0, 1), 1.5), False)
sketch8.addGeometry(Part.Circle(Vector(0.2, -31.1, 0), Vector(0, 0, 1), 1.5), False)
sketch8.addGeometry(Part.Circle(Vector(-4.7, -29.1, 0), Vector(0, 0, 1), 1.5), False)
sketch8.addGeometry(Part.Circle(Vector(-6.7, -24.2, 0), Vector(0, 0, 1), 1.5), False)
sketch8.addGeometry(Part.Circle(Vector(-4.7, -19.3, 0), Vector(0, 0, 1), 1.5), False)
sketch8.addGeometry(Part.Circle(Vector(0.2, -17.3, 0), Vector(0, 0, 1), 1.5), False)
sketch8.addGeometry(Part.Circle(Vector(5, -19.3, 0), Vector(0, 0, 1), 1.5), False)
sketch8.addConstraint(Sketcher.Constraint("Equal", 1, 2))
sketch8.addConstraint(Sketcher.Constraint("Equal", 2, 3))
sketch8.addConstraint(Sketcher.Constraint("Equal", 3, 4))
sketch8.addConstraint(Sketcher.Constraint("Equal", 4, 5))
sketch8.addConstraint(Sketcher.Constraint("Equal", 5, 6))
sketch8.addConstraint(Sketcher.Constraint("Equal", 6, 7))
sketch8.addConstraint(Sketcher.Constraint("Equal", 7, 8))
sketch8.addConstraint(Sketcher.Constraint("Horizontal", 0, 3, 1, 3))
sketch8.addConstraint(Sketcher.Constraint("Horizontal", 2, 3, 4, 3))
sketch8.addConstraint(Sketcher.Constraint("Horizontal", 1, 3, 5, 3))
sketch8.addConstraint(Sketcher.Constraint("Horizontal", 6, 3, 8, 3))
sketch8.addConstraint(Sketcher.Constraint("Vertical", 0, 3, 3, 3))
sketch8.addConstraint(Sketcher.Constraint("Vertical", 4, 3, 6, 3))
sketch8.addConstraint(Sketcher.Constraint("Vertical", 3, 3, 7, 3))
sketch8.addConstraint(Sketcher.Constraint("Vertical", 2, 3, 8, 3))
sketch8.addConstraint(Sketcher.Constraint("Diameter", 1, Q("3 mm")))
sketch8.addConstraint(Sketcher.Constraint("Diameter", 0, Q("5.5 mm")))
sketch8.addConstraint(Sketcher.Constraint("DistanceX", 5, 3, 1, 3, Q("13.81 mm")))
sketch8.addConstraint(Sketcher.Constraint("DistanceX", 0, 3, 1, 3, Q("6.905 mm")))
sketch8.addConstraint(Sketcher.Constraint("DistanceY", 3, 3, 0, 3, Q("6.905 mm")))
sketch8.addConstraint(Sketcher.Constraint("DistanceY", 0, 3, 7, 3, Q("6.905 mm")))
sketch8.addConstraint(Sketcher.Constraint("DistanceX", -1, 1, 0, 3, Q("0.16332 mm")))
sketch8.addConstraint(Sketcher.Constraint("DistanceY", 0, 3, -1, 1, Q("24.199332 mm")))
sketch8.addConstraint(Sketcher.Constraint("DistanceX", 4, 3, -1, 1, Q("4.719252 mm")))
sketch8.addConstraint(Sketcher.Constraint("DistanceY", 6, 3, -1, 1, Q("19.316759 mm")))
sketch8.addConstraint(Sketcher.Constraint("DistanceX", -1, 1, 2, 3, Q("5.045893 mm")))
sketch8.addConstraint(Sketcher.Constraint("DistanceY", 2, 3, -1, 1, Q("29.081904 mm")))
pocket3 = body.newObject("PartDesign::Pocket", "Pocket002")
pocket3.Profile = sketch8
pocket3.Length = 9

# Sketch on XZ plane
sketch9 = body.newObject("Sketcher::SketchObject", "Sketch008")
sketch9.AttachmentSupport = (doc.getObject("XZ_Plane"), [""])
sketch9.MapMode = "FlatFace"
sketch9.addGeometry(Part.LineSegment(Vector(-24, 119, 0), Vector(-24, 109, 0)), False)
sketch9.addGeometry(Part.LineSegment(Vector(-24, 109, 0), Vector(24, 109, 0)), False)
sketch9.addGeometry(Part.LineSegment(Vector(24, 109, 0), Vector(24, 119, 0)), False)
sketch9.addGeometry(Part.LineSegment(Vector(24, 119, 0), Vector(-24, 119, 0)), False)
sketch9.addConstraint(Sketcher.Constraint("Coincident", 0, 2, 1, 1))
sketch9.addConstraint(Sketcher.Constraint("Coincident", 1, 2, 2, 1))
sketch9.addConstraint(Sketcher.Constraint("Coincident", 2, 2, 3, 1))
sketch9.addConstraint(Sketcher.Constraint("Coincident", 3, 2, 0, 1))
sketch9.addConstraint(Sketcher.Constraint("Vertical", 0))
sketch9.addConstraint(Sketcher.Constraint("Horizontal", 1))
sketch9.addConstraint(Sketcher.Constraint("Vertical", 2))
sketch9.addConstraint(Sketcher.Constraint("Horizontal", 3))
sketch9.addConstraint(Sketcher.Constraint("DistanceX", 1, 1, 1, 2, Q("48 mm")))
sketch9.addConstraint(Sketcher.Constraint("DistanceY", 0, 2, 0, 1, Q("10 mm")))
sketch9.addConstraint(Sketcher.Constraint("DistanceX", 0, 2, -1, 1, Q("24.06647 mm")))
sketch9.addConstraint(Sketcher.Constraint("DistanceY", -1, 1, 0, 2, Q("108.880909 mm")))
pad6 = body.newObject("PartDesign::Pad", "Pad005")
pad6.Profile = sketch9
pad6.Length = 15
doc.recompute()

fillet3 = body.newObject("PartDesign::Fillet", "Fillet002")
fillet3.Base = (pad6, edges_at(pad6, [(-0.066, -15, 118.881)]))
fillet3.Radius = 3

# Sketch on XZ plane
sketch10 = body.newObject("Sketcher::SketchObject", "Sketch009")
sketch10.AttachmentSupport = (doc.getObject("XZ_Plane"), [""])
sketch10.MapMode = "FlatFace"
sketch10.AttachmentOffset = App.Placement(Vector(0, 0, -87), App.Rotation())
sketch10.addGeometry(Part.LineSegment(Vector(-49, 16, 0), Vector(-49, 49, 0)), False)
sketch10.addGeometry(Part.LineSegment(Vector(-49, 49, 0), Vector(49, 49, 0)), False)
sketch10.addGeometry(Part.LineSegment(Vector(49, 49, 0), Vector(49, 16, 0)), False)
sketch10.addGeometry(Part.LineSegment(Vector(49, 16, 0), Vector(-49, 16, 0)), False)
sketch10.addConstraint(Sketcher.Constraint("Coincident", 0, 2, 1, 1))
sketch10.addConstraint(Sketcher.Constraint("Coincident", 1, 2, 2, 1))
sketch10.addConstraint(Sketcher.Constraint("Coincident", 2, 2, 3, 1))
sketch10.addConstraint(Sketcher.Constraint("Coincident", 3, 2, 0, 1))
sketch10.addConstraint(Sketcher.Constraint("Vertical", 0))
sketch10.addConstraint(Sketcher.Constraint("Horizontal", 1))
sketch10.addConstraint(Sketcher.Constraint("Vertical", 2))
sketch10.addConstraint(Sketcher.Constraint("Horizontal", 3))
sketch10.addConstraint(Sketcher.Constraint("DistanceX", 1, 1, 1, 2, Q("97.5 mm")))
sketch10.addConstraint(Sketcher.Constraint("DistanceY", 0, 1, 0, 2, Q("33.445844 mm")))
sketch10.addConstraint(Sketcher.Constraint("DistanceX", 0, 2, -1, 1, Q("48.81647 mm")))
sketch10.addConstraint(Sketcher.Constraint("DistanceY", -1, 1, 2, 2, Q("15.880909 mm")))
pocket4 = body.newObject("PartDesign::Pocket", "Pocket003")
pocket4.Profile = sketch10
pocket4.Length = 12
pocket4.Reversed = True
doc.recompute()

fillet4 = body.newObject("PartDesign::Fillet", "Fillet003")
fillet4.Base = (pocket4, edges_at(pocket4, [
    (48.684, 81, 15.881),
    (48.684, 81, 49.327),
    (-48.816, 81, 49.327),
    (-48.816, 81, 15.881),
]))
fillet4.Radius = 5

# Sketch on XY plane
sketch11 = body.newObject("Sketcher::SketchObject", "Sketch010")
sketch11.AttachmentSupport = (doc.getObject("XY_Plane"), [""])
sketch11.MapMode = "FlatFace"
sketch11.AttachmentOffset = App.Placement(Vector(0, 0, 15.880909), App.Rotation())
sketch11.addGeometry(Part.LineSegment(Vector(-8, 87, 0), Vector(-8, 75, 0)), False)
sketch11.addGeometry(Part.LineSegment(Vector(-8, 75, 0), Vector(8, 75, 0)), False)
sketch11.addGeometry(Part.LineSegment(Vector(8, 75, 0), Vector(8, 87, 0)), False)
sketch11.addGeometry(Part.LineSegment(Vector(8, 87, 0), Vector(-8, 87, 0)), False)
sketch11.addConstraint(Sketcher.Constraint("Coincident", 0, 2, 1, 1))
sketch11.addConstraint(Sketcher.Constraint("Coincident", 1, 2, 2, 1))
sketch11.addConstraint(Sketcher.Constraint("Coincident", 2, 2, 3, 1))
sketch11.addConstraint(Sketcher.Constraint("Coincident", 3, 2, 0, 1))
sketch11.addConstraint(Sketcher.Constraint("Vertical", 0))
sketch11.addConstraint(Sketcher.Constraint("Horizontal", 1))
sketch11.addConstraint(Sketcher.Constraint("Vertical", 2))
sketch11.addConstraint(Sketcher.Constraint("Horizontal", 3))
sketch11.addConstraint(Sketcher.Constraint("DistanceY", 0, 2, 0, 1, Q("12 mm")))
sketch11.addConstraint(Sketcher.Constraint("DistanceX", 1, 1, 1, 2, Q("15.5 mm")))
sketch11.addConstraint(Sketcher.Constraint("DistanceY", -1, 1, 0, 2, Q("75 mm")))
sketch11.addConstraint(Sketcher.Constraint("DistanceX", 0, 2, -1, 1, Q("7.81647 mm")))
pad7 = body.newObject("PartDesign::Pad", "Pad006")
pad7.Profile = sketch11
pad7.Length = 34
doc.recompute()

fillet5 = body.newObject("PartDesign::Fillet", "Fillet004")
fillet5.Base = (pad7, edges_at(pad7, [
    (-7.816, 81, 49.327),
    (-7.816, 81, 15.881),
    (7.684, 81, 49.327),
    (7.684, 81, 15.881),
]))
fillet5.Radius = 5

# Sketch on YZ plane
sketch12 = body.newObject("Sketcher::SketchObject", "Sketch011")
sketch12.AttachmentSupport = (doc.getObject("YZ_Plane"), [""])
sketch12.MapMode = "FlatFace"
sketch12.AttachmentOffset = App.Placement(Vector(0, 0, -71.81647), App.Rotation())
sketch12.addGeometry(Part.ArcOfCircle(Part.Circle(Vector(21.5, 14.4, 0), Vector(0, 0, 1), 2.5), math.radians(180), math.radians(360)), False)
sketch12.addGeometry(Part.LineSegment(Vector(19, 14.4, 0), Vector(19, 50.8, 0)), False)
sketch12.addGeometry(Part.ArcOfCircle(Part.Circle(Vector(21.5, 50.8, 0), Vector(0, 0, 1), 2.5), math.radians(0), math.radians(180)), False)
sketch12.addGeometry(Part.LineSegment(Vector(24, 50.8, 0), Vector(24, 14.4, 0)), False)
sketch12.addGeometry(Part.ArcOfCircle(Part.Circle(Vector(31.5, 14.4, 0), Vector(0, 0, 1), 2.5), math.radians(180), math.radians(360)), False)
sketch12.addGeometry(Part.LineSegment(Vector(29, 14.4, 0), Vector(29, 50.8, 0)), False)
sketch12.addGeometry(Part.ArcOfCircle(Part.Circle(Vector(31.5, 50.8, 0), Vector(0, 0, 1), 2.5), math.radians(0), math.radians(180)), False)
sketch12.addGeometry(Part.LineSegment(Vector(34, 50.8, 0), Vector(34, 14.4, 0)), False)
sketch12.addGeometry(Part.ArcOfCircle(Part.Circle(Vector(41.5, 14.4, 0), Vector(0, 0, 1), 2.5), math.radians(180), math.radians(360)), False)
sketch12.addGeometry(Part.LineSegment(Vector(39, 14.4, 0), Vector(39, 50.8, 0)), False)
sketch12.addGeometry(Part.ArcOfCircle(Part.Circle(Vector(41.5, 50.8, 0), Vector(0, 0, 1), 2.5), math.radians(0), math.radians(180)), False)
sketch12.addGeometry(Part.LineSegment(Vector(44, 50.8, 0), Vector(44, 14.4, 0)), False)
sketch12.addGeometry(Part.ArcOfCircle(Part.Circle(Vector(51.5, 14.4, 0), Vector(0, 0, 1), 2.5), math.radians(180), math.radians(360)), False)
sketch12.addGeometry(Part.LineSegment(Vector(49, 14.4, 0), Vector(49, 50.8, 0)), False)
sketch12.addGeometry(Part.ArcOfCircle(Part.Circle(Vector(51.5, 50.8, 0), Vector(0, 0, 1), 2.5), math.radians(0), math.radians(180)), False)
sketch12.addGeometry(Part.LineSegment(Vector(54, 50.8, 0), Vector(54, 14.4, 0)), False)
sketch12.addGeometry(Part.ArcOfCircle(Part.Circle(Vector(61.5, 14.4, 0), Vector(0, 0, 1), 2.5), math.radians(180), math.radians(360)), False)
sketch12.addGeometry(Part.LineSegment(Vector(59, 14.4, 0), Vector(59, 50.8, 0)), False)
sketch12.addGeometry(Part.ArcOfCircle(Part.Circle(Vector(61.5, 50.8, 0), Vector(0, 0, 1), 2.5), math.radians(0), math.radians(180)), False)
sketch12.addGeometry(Part.LineSegment(Vector(64, 50.8, 0), Vector(64, 14.4, 0)), False)
sketch12.addConstraint(Sketcher.Constraint("Tangent", 0, 1, 1, 1))
sketch12.addConstraint(Sketcher.Constraint("Tangent", 1, 2, 2, 2))
sketch12.addConstraint(Sketcher.Constraint("Tangent", 2, 1, 3, 1))
sketch12.addConstraint(Sketcher.Constraint("Tangent", 3, 2, 0, 2))
sketch12.addConstraint(Sketcher.Constraint("Tangent", 4, 1, 5, 1))
sketch12.addConstraint(Sketcher.Constraint("Tangent", 5, 2, 6, 2))
sketch12.addConstraint(Sketcher.Constraint("Tangent", 6, 1, 7, 1))
sketch12.addConstraint(Sketcher.Constraint("Tangent", 7, 2, 4, 2))
sketch12.addConstraint(Sketcher.Constraint("Tangent", 8, 1, 9, 1))
sketch12.addConstraint(Sketcher.Constraint("Tangent", 9, 2, 10, 2))
sketch12.addConstraint(Sketcher.Constraint("Tangent", 10, 1, 11, 1))
sketch12.addConstraint(Sketcher.Constraint("Tangent", 11, 2, 8, 2))
sketch12.addConstraint(Sketcher.Constraint("Tangent", 12, 1, 13, 1))
sketch12.addConstraint(Sketcher.Constraint("Tangent", 13, 2, 14, 2))
sketch12.addConstraint(Sketcher.Constraint("Tangent", 14, 1, 15, 1))
sketch12.addConstraint(Sketcher.Constraint("Tangent", 15, 2, 12, 2))
sketch12.addConstraint(Sketcher.Constraint("Tangent", 16, 1, 17, 1))
sketch12.addConstraint(Sketcher.Constraint("Tangent", 17, 2, 18, 2))
sketch12.addConstraint(Sketcher.Constraint("Tangent", 18, 1, 19, 1))
sketch12.addConstraint(Sketcher.Constraint("Tangent", 19, 2, 16, 2))
sketch12.addConstraint(Sketcher.Constraint("Vertical", 1))
sketch12.addConstraint(Sketcher.Constraint("Vertical", 3))
sketch12.addConstraint(Sketcher.Constraint("Vertical", 5))
sketch12.addConstraint(Sketcher.Constraint("Vertical", 7))
sketch12.addConstraint(Sketcher.Constraint("Vertical", 9))
sketch12.addConstraint(Sketcher.Constraint("Vertical", 11))
sketch12.addConstraint(Sketcher.Constraint("Vertical", 13))
sketch12.addConstraint(Sketcher.Constraint("Vertical", 15))
sketch12.addConstraint(Sketcher.Constraint("Vertical", 17))
sketch12.addConstraint(Sketcher.Constraint("Vertical", 19))
sketch12.addConstraint(Sketcher.Constraint("Equal", 2, 4))
sketch12.addConstraint(Sketcher.Constraint("Equal", 6, 8))
sketch12.addConstraint(Sketcher.Constraint("Equal", 10, 12))
sketch12.addConstraint(Sketcher.Constraint("Equal", 14, 16))
sketch12.addConstraint(Sketcher.Constraint("Horizontal", 0, 3, 4, 3))
sketch12.addConstraint(Sketcher.Constraint("Horizontal", 2, 3, 6, 3))
sketch12.addConstraint(Sketcher.Constraint("Horizontal", 4, 3, 8, 3))
sketch12.addConstraint(Sketcher.Constraint("Horizontal", 6, 3, 10, 3))
sketch12.addConstraint(Sketcher.Constraint("Horizontal", 8, 3, 12, 3))
sketch12.addConstraint(Sketcher.Constraint("Horizontal", 10, 3, 14, 3))
sketch12.addConstraint(Sketcher.Constraint("Horizontal", 12, 3, 16, 3))
sketch12.addConstraint(Sketcher.Constraint("Horizontal", 14, 3, 18, 3))
sketch12.addConstraint(Sketcher.Constraint("Radius", 0, Q("2.5 mm")))
sketch12.addConstraint(Sketcher.Constraint("DistanceX", -1, 1, 0, 1, Q("19 mm")))
sketch12.addConstraint(Sketcher.Constraint("DistanceX", -1, 1, 4, 1, Q("29 mm")))
sketch12.addConstraint(Sketcher.Constraint("DistanceX", -1, 1, 8, 1, Q("39 mm")))
sketch12.addConstraint(Sketcher.Constraint("DistanceX", -1, 1, 12, 1, Q("49 mm")))
sketch12.addConstraint(Sketcher.Constraint("DistanceX", -1, 1, 16, 1, Q("59 mm")))
sketch12.addConstraint(Sketcher.Constraint("DistanceY", 1, 1, 1, 2, Q("36.445844 mm")))
sketch12.addConstraint(Sketcher.Constraint("DistanceY", -1, 1, 0, 3, Q("14.380909 mm")))
pocket5 = body.newObject("PartDesign::Pocket", "Pocket004")
pocket5.Profile = sketch12
pocket5.Length = 143.5
pocket5.Reversed = True
doc.recompute()

chamfer = body.newObject("PartDesign::Chamfer", "Chamfer")
chamfer.Base = (pocket5, edges_at(pocket5, [
    (-71.816, 41.5, 53.327),
    (71.684, 51.5, 11.881),
    (-71.816, 54, 32.604),
    (71.684, 51.5, 53.327),
    (-71.816, 49, 32.604),
    (71.684, 54, 32.604),
    (71.684, 49, 32.604),
    (-71.816, 51.5, 11.881),
    (-71.816, 51.5, 53.327),
    (71.684, 61.5, 11.881),
    (-71.816, 64, 32.604),
    (71.684, 61.5, 53.327),
    (-71.816, 59, 32.604),
    (71.684, 64, 32.604),
    (71.684, 59, 32.604),
    (-71.816, 61.5, 11.881),
    (-71.816, 61.5, 53.327),
    (71.684, 21.5, 11.881),
    (-71.816, 24, 32.604),
    (71.684, 21.5, 53.327),
    (-71.816, 19, 32.604),
    (71.684, 24, 32.604),
    (71.684, 19, 32.604),
    (-71.816, 21.5, 11.881),
    (-71.816, 21.5, 53.327),
    (71.684, 31.5, 11.881),
    (-71.816, 34, 32.604),
    (71.684, 31.5, 53.327),
    (-71.816, 29, 32.604),
    (71.684, 34, 32.604),
    (71.684, 29, 32.604),
    (-71.816, 31.5, 11.881),
    (-71.816, 31.5, 53.327),
    (71.684, 41.5, 11.881),
    (-71.816, 44, 32.604),
    (71.684, 41.5, 53.327),
    (-71.816, 39, 32.604),
    (71.684, 44, 32.604),
    (71.684, 39, 32.604),
    (-71.816, 41.5, 11.881),
]))
chamfer.Size = 2

doc.recompute()
